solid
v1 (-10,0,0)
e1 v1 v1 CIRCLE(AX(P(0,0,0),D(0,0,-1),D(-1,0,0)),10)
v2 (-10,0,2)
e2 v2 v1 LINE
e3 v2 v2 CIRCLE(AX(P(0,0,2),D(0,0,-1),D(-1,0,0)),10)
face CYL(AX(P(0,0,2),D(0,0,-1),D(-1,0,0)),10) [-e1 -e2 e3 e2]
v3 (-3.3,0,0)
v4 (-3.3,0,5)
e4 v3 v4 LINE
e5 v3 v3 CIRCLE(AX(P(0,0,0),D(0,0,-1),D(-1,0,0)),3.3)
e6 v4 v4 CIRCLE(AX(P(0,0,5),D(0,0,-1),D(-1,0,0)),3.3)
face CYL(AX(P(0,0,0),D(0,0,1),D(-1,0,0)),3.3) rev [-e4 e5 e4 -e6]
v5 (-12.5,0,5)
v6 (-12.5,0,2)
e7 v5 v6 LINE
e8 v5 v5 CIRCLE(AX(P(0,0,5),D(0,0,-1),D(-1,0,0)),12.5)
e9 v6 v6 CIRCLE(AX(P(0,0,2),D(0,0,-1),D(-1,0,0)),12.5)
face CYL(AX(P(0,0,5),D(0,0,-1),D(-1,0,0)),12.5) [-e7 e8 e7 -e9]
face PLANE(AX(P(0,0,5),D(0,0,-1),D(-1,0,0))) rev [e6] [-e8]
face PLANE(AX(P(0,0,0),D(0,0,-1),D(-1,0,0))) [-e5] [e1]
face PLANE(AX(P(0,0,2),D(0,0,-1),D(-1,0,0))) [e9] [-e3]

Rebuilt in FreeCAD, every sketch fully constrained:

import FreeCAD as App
import Part
import Sketcher
from FreeCAD import Vector


def add_polygon(sketch, points):
    """Adds a closed chain of lines whose ends are joined by coincident constraints."""
    first, n = sketch.GeometryCount, len(points)
    for a, b in zip(points, points[1:] + points[:1]):
        sketch.addGeometry(Part.LineSegment(App.Vector(*a, 0), App.Vector(*b, 0)), False)
    for i in range(n):
        sketch.addConstraint(Sketcher.Constraint("Coincident", first + i, 2, first + (i + 1) % n, 1))

doc = App.newDocument("Part")
body = doc.addObject("PartDesign::Body", "Body")

sketch1 = body.newObject("Sketcher::SketchObject", "Sketch")
sketch1.AttachmentSupport = (doc.getObject("XZ_Plane"), [""])
sketch1.MapMode = "FlatFace"
add_polygon(sketch1, [(-10, 0), (-3.3, 0), (-3.3, 5), (-12.5, 5), (-12.5, 2), (-10, 2)])
sketch1.addConstraint(Sketcher.Constraint("Horizontal", 0))
sketch1.addConstraint(Sketcher.Constraint("Vertical", 1))
sketch1.addConstraint(Sketcher.Constraint("Horizontal", 2))
sketch1.addConstraint(Sketcher.Constraint("Vertical", 3))
sketch1.addConstraint(Sketcher.Constraint("Horizontal", 4))
sketch1.addConstraint(Sketcher.Constraint("Vertical", 5))
sketch1.addConstraint(Sketcher.Constraint("PointOnObject", 0, 2, -1))
sketch1.addConstraint(Sketcher.Constraint("DistanceX", 4, 2, -1, 1, 10.0))
sketch1.addConstraint(Sketcher.Constraint("DistanceX", 0, 2, -1, 1, 3.3))
sketch1.addConstraint(Sketcher.Constraint("DistanceX", 2, 2, -1, 1, 12.5))
sketch1.addConstraint(Sketcher.Constraint("DistanceY", 1, 1, 1, 2, 5.0))
sketch1.addConstraint(Sketcher.Constraint("DistanceY", 3, 2, 3, 1, 3.0))
revolution = body.newObject("PartDesign::Revolution", "Revolution")
revolution.Profile = sketch1
revolution.ReferenceAxis = (sketch1, ["V_Axis"])
revolution.Angle = 360

doc.recompute()
